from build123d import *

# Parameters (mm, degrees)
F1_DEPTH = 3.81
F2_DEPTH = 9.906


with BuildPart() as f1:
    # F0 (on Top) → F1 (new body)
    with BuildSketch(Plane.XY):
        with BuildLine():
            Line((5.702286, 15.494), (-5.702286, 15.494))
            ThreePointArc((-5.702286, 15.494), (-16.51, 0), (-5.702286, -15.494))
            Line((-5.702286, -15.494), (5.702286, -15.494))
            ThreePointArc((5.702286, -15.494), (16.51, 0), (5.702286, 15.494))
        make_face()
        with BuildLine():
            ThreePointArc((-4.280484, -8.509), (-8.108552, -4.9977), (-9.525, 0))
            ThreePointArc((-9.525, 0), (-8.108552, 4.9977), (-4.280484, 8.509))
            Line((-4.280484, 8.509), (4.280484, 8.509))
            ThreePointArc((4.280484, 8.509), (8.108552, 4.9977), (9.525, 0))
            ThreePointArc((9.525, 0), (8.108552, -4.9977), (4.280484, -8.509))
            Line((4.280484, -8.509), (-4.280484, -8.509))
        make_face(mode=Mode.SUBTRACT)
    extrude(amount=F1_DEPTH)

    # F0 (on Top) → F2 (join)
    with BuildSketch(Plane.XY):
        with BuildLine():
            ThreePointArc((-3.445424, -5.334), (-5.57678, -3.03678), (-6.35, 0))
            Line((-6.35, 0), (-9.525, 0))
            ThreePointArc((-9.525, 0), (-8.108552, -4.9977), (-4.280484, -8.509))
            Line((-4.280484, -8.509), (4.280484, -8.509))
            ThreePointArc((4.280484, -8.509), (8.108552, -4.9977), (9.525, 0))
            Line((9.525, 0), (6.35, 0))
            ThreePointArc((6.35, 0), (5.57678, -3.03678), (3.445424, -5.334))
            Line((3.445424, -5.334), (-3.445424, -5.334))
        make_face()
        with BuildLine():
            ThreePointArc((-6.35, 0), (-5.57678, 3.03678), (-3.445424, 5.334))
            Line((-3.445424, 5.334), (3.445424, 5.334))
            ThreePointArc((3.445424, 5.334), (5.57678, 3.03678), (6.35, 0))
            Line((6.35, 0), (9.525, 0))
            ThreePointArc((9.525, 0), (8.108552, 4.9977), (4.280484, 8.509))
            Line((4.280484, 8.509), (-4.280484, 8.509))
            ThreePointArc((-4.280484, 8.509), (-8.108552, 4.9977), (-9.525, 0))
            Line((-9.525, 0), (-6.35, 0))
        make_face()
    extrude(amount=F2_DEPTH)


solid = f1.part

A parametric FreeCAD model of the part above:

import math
import FreeCAD as App
import Part
import Sketcher
Q = App.Units.Quantity

doc = App.newDocument("Part")
body = doc.addObject("PartDesign::Body", "Body")

# Sketch on XY plane
sketch1 = doc.addObject("Sketcher::SketchObject", "Sketch")
body.addObject(sketch1)
sketch1.AttachmentSupport = (doc.XY_Plane, [""])
sketch1.MapMode = "FlatFace"
sketch1.addGeometry([
    Part.LineSegment(App.Vector(6, 15, 0), App.Vector(-6, 15, 0)),  # 0
    Part.ArcOfCircle(Part.Circle(App.Vector(0, 0, 0), App.Vector(0, 0, 1), 17), math.radians(110), math.radians(250)),  # 1
    Part.LineSegment(App.Vector(-6, -15, 0), App.Vector(6, -15, 0)),  # 2
    Part.ArcOfCircle(Part.Circle(App.Vector(0, 0, 0), App.Vector(0, 0, 1), 17), math.radians(-70), math.radians(70)),  # 3
    Part.LineSegment(App.Vector(4, -9, 0), App.Vector(-4, -9, 0)),  # 4
    Part.ArcOfCircle(Part.Circle(App.Vector(0, 0, 0), App.Vector(0, 0, 1), 10), math.radians(-180), math.radians(-117)),  # 5
    Part.ArcOfCircle(Part.Circle(App.Vector(0, 0, 0), App.Vector(0, 0, 1), 10), math.radians(117), math.radians(180)),  # 6
    Part.LineSegment(App.Vector(-4, 9, 0), App.Vector(4, 9, 0)),  # 7
    Part.ArcOfCircle(Part.Circle(App.Vector(0, 0, 0), App.Vector(0, 0, 1), 10), math.radians(0), math.radians(63)),  # 8
    Part.ArcOfCircle(Part.Circle(App.Vector(0, 0, 0), App.Vector(0, 0, 1), 10), math.radians(-63), math.radians(0)),  # 9
], False)
sketch1.addConstraint([
    Sketcher.Constraint("Coincident", 0, 2, 1, 1),
    Sketcher.Constraint("Coincident", 1, 2, 2, 1),
    Sketcher.Constraint("Coincident", 2, 2, 3, 1),
    Sketcher.Constraint("Coincident", 3, 2, 0, 1),
    Sketcher.Constraint("Coincident", 4, 2, 5, 2),
    Sketcher.Constraint("Tangent", 5, 1, 6, 2),
    Sketcher.Constraint("Coincident", 6, 1, 7, 1),
    Sketcher.Constraint("Coincident", 7, 2, 8, 2),
    Sketcher.Constraint("Tangent", 8, 1, 9, 2),
    Sketcher.Constraint("Coincident", 9, 1, 4, 1),
    Sketcher.Constraint("Horizontal", 0),
    Sketcher.Constraint("Horizontal", 2),
    Sketcher.Constraint("Horizontal", 4),
    Sketcher.Constraint("Horizontal", 7),
    Sketcher.Constraint("Coincident", 1, 3, -1, 1),
    Sketcher.Constraint("Coincident", 3, 3, -1, 1),
    Sketcher.Constraint("Coincident", 5, 3, -1, 1),
    Sketcher.Constraint("Coincident", 8, 3, -1, 1),
    Sketcher.Constraint("Equal", 1, 3),
    Sketcher.Constraint("Equal", 5, 6),
    Sketcher.Constraint("Equal", 6, 8),
    Sketcher.Constraint("Equal", 8, 9),
    Sketcher.Constraint("PointOnObject", 5, 1, -1),
    Sketcher.Constraint("PointOnObject", 8, 1, -1),
    Sketcher.Constraint("Vertical", 0, 2, 1, 2),
    Sketcher.Constraint("Vertical", 4, 2, 6, 1),
    Sketcher.Constraint("Radius", 1, Q("0.65 in")),
    Sketcher.Constraint("Radius", 5, Q("0.375 in")),
    Sketcher.Constraint("DistanceY", -1, 1, 0, 2, Q("0.61 in")),
    Sketcher.Constraint("DistanceY", 4, 2, -1, 1, Q("0.335 in")),
])
pad1 = doc.addObject("PartDesign::Pad", "Pad")
body.addObject(pad1)
pad1.Profile = sketch1
pad1.Length = Q("0.15 in")

# Sketch on XY plane
sketch2 = doc.addObject("Sketcher::SketchObject", "Sketch001")
body.addObject(sketch2)
sketch2.AttachmentSupport = (doc.XY_Plane, [""])
sketch2.MapMode = "FlatFace"
sketch2.addGeometry([
    Part.ArcOfCircle(Part.Circle(App.Vector(0, 0, 0), App.Vector(0, 0, 1), 10), math.radians(-180), math.radians(-117)),  # 0
    Part.LineSegment(App.Vector(-4, -9, 0), App.Vector(4, -9, 0)),  # 1
    Part.ArcOfCircle(Part.Circle(App.Vector(0, 0, 0), App.Vector(0, 0, 1), 10), math.radians(-63), math.radians(0)),  # 2
    Part.ArcOfCircle(Part.Circle(App.Vector(0, 0, 0), App.Vector(0, 0, 1), 10), math.radians(0), math.radians(63)),  # 3
    Part.LineSegment(App.Vector(4, 9, 0), App.Vector(-4, 9, 0)),  # 4
    Part.ArcOfCircle(Part.Circle(App.Vector(0, 0, 0), App.Vector(0, 0, 1), 10), math.radians(117), math.radians(180)),  # 5
    Part.ArcOfCircle(Part.Circle(App.Vector(0, 0, 0), App.Vector(0, 0, 1), 6), math.radians(180), math.radians(237)),  # 6
    Part.ArcOfCircle(Part.Circle(App.Vector(0, 0, 0), App.Vector(0, 0, 1), 6), math.radians(123), math.radians(180)),  # 7
    Part.LineSegment(App.Vector(-3, 5, 0), App.Vector(3, 5, 0)),  # 8
    Part.ArcOfCircle(Part.Circle(App.Vector(0, 0, 0), App.Vector(0, 0, 1), 6), math.radians(0), math.radians(57)),  # 9
    Part.ArcOfCircle(Part.Circle(App.Vector(0, 0, 0), App.Vector(0, 0, 1), 6), math.radians(-57), math.radians(0)),  # 10
    Part.LineSegment(App.Vector(3, -5, 0), App.Vector(-3, -5, 0)),  # 11
], False)
sketch2.addConstraint([
    Sketcher.Constraint("Coincident", 0, 2, 1, 1),
    Sketcher.Constraint("Coincident", 1, 2, 2, 1),
    Sketcher.Constraint("Tangent", 2, 2, 3, 1),
    Sketcher.Constraint("Coincident", 3, 2, 4, 1),
    Sketcher.Constraint("Coincident", 4, 2, 5, 1),
    Sketcher.Constraint("Tangent", 5, 2, 0, 1),
    Sketcher.Constraint("Tangent", 6, 1, 7, 2),
    Sketcher.Constraint("Coincident", 7, 1, 8, 1),
    Sketcher.Constraint("Coincident", 8, 2, 9, 2),
    Sketcher.Constraint("Tangent", 9, 1, 10, 2),
    Sketcher.Constraint("Coincident", 10, 1, 11, 1),
    Sketcher.Constraint("Coincident", 11, 2, 6, 2),
    Sketcher.Constraint("Horizontal", 1),
    Sketcher.Constraint("Horizontal", 4),
    Sketcher.Constraint("Horizontal", 8),
    Sketcher.Constraint("Horizontal", 11),
    Sketcher.Constraint("Coincident", 0, 3, -1, 1),
    Sketcher.Constraint("Coincident", 2, 3, -1, 1),
    Sketcher.Constraint("Coincident", 6, 3, -1, 1),
    Sketcher.Constraint("Coincident", 9, 3, -1, 1),
    Sketcher.Constraint("Equal", 0, 2),
    Sketcher.Constraint("Equal", 2, 3),
    Sketcher.Constraint("Equal", 3, 5),
    Sketcher.Constraint("Equal", 6, 7),
    Sketcher.Constraint("Equal", 7, 9),
    Sketcher.Constraint("Equal", 9, 10),
    Sketcher.Constraint("PointOnObject", 2, 2, -1),
    Sketcher.Constraint("PointOnObject", 5, 2, -1),
    Sketcher.Constraint("PointOnObject", 6, 1, -1),
    Sketcher.Constraint("PointOnObject", 9, 1, -1),
    Sketcher.Constraint("Vertical", 1, 2, 3, 2),
    Sketcher.Constraint("Vertical", 8, 2, 10, 1),
    Sketcher.Constraint("Radius", 6, Q("0.2499999 in")),
    Sketcher.Constraint("Radius", 0, Q("0.375 in")),
    Sketcher.Constraint("DistanceY", -1, 1, 7, 1, Q("0.21 in")),
    Sketcher.Constraint("DistanceY", 0, 2, -1, 1, Q("0.335 in")),
])
pad2 = doc.addObject("PartDesign::Pad", "Pad001")
body.addObject(pad2)
pad2.Profile = sketch2
pad2.Length = Q("0.39 in")

doc.recompute()
